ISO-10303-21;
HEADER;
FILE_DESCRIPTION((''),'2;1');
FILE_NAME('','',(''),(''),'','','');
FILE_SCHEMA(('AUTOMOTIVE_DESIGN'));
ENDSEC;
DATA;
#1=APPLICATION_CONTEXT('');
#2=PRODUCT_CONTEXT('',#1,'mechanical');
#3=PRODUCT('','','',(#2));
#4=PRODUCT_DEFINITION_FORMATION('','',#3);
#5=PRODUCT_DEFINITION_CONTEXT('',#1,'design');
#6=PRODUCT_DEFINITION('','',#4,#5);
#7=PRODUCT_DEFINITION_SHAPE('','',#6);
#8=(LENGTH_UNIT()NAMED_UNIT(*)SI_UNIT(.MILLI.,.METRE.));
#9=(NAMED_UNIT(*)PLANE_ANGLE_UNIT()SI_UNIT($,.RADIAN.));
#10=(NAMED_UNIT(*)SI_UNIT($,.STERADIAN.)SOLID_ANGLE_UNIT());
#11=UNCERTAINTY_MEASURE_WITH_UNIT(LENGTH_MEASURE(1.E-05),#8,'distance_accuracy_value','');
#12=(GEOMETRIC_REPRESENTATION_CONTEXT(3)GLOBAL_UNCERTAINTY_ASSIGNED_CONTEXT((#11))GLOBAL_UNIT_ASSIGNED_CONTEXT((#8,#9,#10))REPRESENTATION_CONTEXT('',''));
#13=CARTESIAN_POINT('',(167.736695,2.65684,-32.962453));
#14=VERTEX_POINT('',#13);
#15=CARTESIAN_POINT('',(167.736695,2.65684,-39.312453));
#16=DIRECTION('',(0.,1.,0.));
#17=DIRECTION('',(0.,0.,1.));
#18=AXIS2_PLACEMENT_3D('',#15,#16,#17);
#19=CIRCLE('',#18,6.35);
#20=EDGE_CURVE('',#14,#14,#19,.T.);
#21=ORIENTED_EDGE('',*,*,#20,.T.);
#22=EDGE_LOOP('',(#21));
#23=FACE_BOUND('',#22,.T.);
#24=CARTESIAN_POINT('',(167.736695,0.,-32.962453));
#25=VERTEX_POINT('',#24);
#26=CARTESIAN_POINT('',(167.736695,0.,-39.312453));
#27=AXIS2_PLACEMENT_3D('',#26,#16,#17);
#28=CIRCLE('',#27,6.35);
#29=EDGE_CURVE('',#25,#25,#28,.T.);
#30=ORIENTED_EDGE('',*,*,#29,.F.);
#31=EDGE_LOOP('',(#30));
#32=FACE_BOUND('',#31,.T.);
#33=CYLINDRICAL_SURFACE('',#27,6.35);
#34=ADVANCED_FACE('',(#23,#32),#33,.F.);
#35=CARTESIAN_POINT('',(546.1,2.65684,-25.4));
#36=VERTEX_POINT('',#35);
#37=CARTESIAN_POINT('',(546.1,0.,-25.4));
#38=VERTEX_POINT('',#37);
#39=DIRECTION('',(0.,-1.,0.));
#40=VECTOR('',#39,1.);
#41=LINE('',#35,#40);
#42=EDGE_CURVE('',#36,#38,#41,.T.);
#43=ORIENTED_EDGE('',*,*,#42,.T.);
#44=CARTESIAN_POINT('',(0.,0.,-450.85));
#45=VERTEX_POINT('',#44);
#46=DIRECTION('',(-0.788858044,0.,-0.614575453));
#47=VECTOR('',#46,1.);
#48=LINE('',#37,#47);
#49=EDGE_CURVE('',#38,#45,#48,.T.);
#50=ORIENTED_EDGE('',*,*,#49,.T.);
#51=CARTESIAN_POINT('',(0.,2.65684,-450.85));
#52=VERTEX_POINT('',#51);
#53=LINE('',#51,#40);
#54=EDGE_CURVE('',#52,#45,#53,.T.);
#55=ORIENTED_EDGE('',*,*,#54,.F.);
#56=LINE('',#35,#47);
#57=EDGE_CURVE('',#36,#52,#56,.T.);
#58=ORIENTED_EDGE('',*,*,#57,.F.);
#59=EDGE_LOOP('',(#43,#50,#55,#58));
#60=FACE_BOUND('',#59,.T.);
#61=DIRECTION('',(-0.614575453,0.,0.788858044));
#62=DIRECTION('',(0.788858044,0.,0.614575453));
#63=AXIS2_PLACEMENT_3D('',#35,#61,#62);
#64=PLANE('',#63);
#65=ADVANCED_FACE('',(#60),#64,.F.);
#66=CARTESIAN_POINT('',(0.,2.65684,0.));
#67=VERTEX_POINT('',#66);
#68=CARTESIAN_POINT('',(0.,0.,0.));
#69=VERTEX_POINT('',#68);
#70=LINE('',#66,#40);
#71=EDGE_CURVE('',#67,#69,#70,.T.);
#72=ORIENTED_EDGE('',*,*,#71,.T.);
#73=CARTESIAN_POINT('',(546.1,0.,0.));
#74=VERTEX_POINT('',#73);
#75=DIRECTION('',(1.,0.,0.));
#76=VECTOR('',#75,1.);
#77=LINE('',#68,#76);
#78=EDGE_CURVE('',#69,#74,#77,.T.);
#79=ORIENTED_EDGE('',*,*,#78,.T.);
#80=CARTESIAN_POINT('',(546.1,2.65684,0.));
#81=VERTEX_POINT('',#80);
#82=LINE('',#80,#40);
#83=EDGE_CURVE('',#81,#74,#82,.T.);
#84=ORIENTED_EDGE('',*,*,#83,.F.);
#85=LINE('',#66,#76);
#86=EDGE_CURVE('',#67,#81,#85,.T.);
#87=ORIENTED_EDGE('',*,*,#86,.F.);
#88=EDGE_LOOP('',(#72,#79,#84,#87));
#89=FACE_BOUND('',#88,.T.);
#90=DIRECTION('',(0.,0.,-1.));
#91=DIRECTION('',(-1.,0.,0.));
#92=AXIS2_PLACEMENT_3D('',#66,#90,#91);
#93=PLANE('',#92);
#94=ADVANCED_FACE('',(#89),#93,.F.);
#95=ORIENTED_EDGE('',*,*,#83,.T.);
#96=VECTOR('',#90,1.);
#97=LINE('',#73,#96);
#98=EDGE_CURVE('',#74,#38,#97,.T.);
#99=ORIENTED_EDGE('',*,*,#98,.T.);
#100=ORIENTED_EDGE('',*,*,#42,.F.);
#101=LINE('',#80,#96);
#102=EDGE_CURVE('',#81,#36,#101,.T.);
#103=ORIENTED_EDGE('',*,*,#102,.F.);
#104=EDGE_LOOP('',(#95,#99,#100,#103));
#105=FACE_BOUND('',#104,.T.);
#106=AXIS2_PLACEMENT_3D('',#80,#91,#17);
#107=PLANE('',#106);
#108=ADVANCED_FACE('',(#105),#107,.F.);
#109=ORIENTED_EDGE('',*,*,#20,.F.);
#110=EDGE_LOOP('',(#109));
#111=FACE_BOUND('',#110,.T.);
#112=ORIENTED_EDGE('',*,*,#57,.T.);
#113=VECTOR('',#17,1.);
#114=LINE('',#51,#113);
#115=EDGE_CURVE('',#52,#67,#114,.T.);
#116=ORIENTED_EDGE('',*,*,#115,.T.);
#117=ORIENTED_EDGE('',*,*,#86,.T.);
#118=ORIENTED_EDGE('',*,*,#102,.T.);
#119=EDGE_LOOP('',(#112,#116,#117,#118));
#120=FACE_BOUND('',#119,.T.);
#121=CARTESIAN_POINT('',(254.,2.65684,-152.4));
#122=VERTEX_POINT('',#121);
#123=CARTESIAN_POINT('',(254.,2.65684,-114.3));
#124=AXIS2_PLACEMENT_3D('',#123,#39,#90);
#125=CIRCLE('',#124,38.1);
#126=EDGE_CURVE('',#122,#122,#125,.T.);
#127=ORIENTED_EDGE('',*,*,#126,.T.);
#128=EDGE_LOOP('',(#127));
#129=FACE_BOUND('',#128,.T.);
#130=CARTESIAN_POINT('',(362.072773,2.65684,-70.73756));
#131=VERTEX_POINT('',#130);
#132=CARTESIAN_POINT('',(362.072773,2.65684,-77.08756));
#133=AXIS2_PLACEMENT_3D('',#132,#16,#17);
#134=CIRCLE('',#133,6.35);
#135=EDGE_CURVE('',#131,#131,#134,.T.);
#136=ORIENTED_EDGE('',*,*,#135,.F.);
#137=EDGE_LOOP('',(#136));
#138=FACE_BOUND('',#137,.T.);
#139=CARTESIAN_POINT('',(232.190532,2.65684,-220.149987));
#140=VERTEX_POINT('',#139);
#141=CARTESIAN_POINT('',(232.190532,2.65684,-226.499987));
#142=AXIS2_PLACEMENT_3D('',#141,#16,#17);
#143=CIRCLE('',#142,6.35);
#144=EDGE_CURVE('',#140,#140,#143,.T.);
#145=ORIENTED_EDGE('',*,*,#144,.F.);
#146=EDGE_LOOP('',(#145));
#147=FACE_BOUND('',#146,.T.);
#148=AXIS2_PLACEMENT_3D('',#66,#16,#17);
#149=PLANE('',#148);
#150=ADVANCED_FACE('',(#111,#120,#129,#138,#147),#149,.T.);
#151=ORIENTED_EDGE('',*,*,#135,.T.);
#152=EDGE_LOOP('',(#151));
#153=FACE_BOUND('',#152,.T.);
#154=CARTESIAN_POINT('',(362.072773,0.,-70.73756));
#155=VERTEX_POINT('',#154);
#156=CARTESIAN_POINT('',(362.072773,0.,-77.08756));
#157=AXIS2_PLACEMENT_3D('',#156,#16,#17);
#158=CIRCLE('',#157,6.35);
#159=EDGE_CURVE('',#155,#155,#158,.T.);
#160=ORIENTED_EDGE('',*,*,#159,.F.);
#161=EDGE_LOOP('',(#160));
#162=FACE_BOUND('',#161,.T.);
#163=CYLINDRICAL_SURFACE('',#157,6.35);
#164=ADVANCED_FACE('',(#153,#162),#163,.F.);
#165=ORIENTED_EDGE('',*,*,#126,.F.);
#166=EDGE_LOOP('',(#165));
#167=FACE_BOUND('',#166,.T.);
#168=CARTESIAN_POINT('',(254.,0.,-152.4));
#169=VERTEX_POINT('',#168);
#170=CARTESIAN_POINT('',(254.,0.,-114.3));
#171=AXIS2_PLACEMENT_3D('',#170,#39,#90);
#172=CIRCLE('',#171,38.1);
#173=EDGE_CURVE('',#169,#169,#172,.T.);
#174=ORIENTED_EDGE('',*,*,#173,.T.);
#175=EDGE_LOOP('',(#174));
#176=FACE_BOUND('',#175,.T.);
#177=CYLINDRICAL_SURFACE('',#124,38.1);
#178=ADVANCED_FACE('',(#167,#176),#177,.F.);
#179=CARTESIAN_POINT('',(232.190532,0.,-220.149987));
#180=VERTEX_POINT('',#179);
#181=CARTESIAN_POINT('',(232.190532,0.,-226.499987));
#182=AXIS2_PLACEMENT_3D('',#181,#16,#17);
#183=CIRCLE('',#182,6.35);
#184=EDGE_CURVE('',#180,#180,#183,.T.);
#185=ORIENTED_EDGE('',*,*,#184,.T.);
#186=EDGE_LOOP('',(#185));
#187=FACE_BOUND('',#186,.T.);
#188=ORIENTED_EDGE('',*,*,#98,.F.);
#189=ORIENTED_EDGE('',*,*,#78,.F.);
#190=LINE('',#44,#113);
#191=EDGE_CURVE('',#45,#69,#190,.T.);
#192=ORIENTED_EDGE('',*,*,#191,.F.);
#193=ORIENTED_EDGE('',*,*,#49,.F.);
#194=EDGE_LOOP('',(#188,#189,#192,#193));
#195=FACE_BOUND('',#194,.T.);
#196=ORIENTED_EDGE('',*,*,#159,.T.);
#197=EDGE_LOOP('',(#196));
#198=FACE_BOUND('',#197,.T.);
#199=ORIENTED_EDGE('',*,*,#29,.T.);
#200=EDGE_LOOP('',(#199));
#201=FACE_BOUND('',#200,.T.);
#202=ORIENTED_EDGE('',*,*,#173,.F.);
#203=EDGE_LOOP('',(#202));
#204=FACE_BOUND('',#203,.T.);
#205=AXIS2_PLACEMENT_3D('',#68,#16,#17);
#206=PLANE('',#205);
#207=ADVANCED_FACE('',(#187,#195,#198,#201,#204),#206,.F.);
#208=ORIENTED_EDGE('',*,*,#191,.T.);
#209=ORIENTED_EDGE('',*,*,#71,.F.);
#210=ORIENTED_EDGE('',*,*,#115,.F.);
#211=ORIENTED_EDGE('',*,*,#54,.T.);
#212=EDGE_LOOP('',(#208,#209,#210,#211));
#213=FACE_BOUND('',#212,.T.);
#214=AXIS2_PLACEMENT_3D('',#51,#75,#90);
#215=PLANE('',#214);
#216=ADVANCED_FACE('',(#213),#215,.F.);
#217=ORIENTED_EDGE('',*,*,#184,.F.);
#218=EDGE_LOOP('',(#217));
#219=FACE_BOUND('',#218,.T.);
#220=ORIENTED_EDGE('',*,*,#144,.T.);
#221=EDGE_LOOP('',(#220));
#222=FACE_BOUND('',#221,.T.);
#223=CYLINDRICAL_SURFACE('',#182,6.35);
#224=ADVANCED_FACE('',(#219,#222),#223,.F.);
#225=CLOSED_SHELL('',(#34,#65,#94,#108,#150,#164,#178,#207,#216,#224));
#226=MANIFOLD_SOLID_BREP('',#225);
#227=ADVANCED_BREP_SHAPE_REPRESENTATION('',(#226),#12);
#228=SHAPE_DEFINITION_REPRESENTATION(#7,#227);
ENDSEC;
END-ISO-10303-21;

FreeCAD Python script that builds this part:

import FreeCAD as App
import Part
import Sketcher

V = App.Vector
Q = App.Units.Quantity


def add_polygon(sketch, points):
    """Adds a closed chain of lines whose ends are joined by coincident constraints."""
    first, n = sketch.GeometryCount, len(points)
    for a, b in zip(points, points[1:] + points[:1]):
        sketch.addGeometry(Part.LineSegment(App.Vector(*a, 0), App.Vector(*b, 0)), False)
    for i in range(n):
        sketch.addConstraint(Sketcher.Constraint("Coincident", first + i, 2, first + (i + 1) % n, 1))

doc = App.newDocument("Part")
params = doc.addObject("Spreadsheet::Sheet", "Params")
for row, (alias, value) in enumerate([
    ("sketch1_height", "1 in"),
    ("sketch1_width", "21.5 in"),
    ("sketch1_height2", "17.75 in"),
    ("pad1_length", "0.1046 in"),
    ("sketch2_diameter", "3 in"),
    ("sketch3_diameter", "0.5 in"),
], start=1):
    params.set(f"A{row}", alias)
    params.set(f"B{row}", "=" + value)
    params.setAlias(f"B{row}", alias)

body = doc.addObject("PartDesign::Body", "Body")

sketch1 = body.newObject("Sketcher::SketchObject", "Sketch")
sketch1.AttachmentSupport = (doc.getObject("XZ_Plane"), [""])
sketch1.MapMode = "FlatFace"
add_polygon(sketch1, [(0, -451), (0, 0), (546, 0), (546, -25)])
sketch1.addConstraint(Sketcher.Constraint("Vertical", 0))
sketch1.addConstraint(Sketcher.Constraint("Horizontal", 1))
sketch1.addConstraint(Sketcher.Constraint("Vertical", 2))
sketch1.addConstraint(Sketcher.Constraint("Coincident", 0, 2, -1, 1))
sketch1.addConstraint(Sketcher.Constraint("DistanceY", 2, 2, 2, 1, Q("1 in")))
sketch1.addConstraint(Sketcher.Constraint("DistanceX", 1, 1, 1, 2, Q("21.5 in")))
sketch1.addConstraint(Sketcher.Constraint("DistanceY", 0, 1, 0, 2, Q("17.75 in")))
sketch1.setExpression("Constraints[8]", "Params.sketch1_height")
sketch1.setExpression("Constraints[9]", "Params.sketch1_width")
sketch1.setExpression("Constraints[10]", "Params.sketch1_height2")
pad1 = body.newObject("PartDesign::Pad", "Pad")
pad1.Profile = sketch1
pad1.setExpression("Length", "Params.pad1_length")
pad1.Reversed = True

sketch2 = body.newObject("Sketcher::SketchObject", "Sketch001")
sketch2.AttachmentSupport = (doc.getObject("XZ_Plane"), [""])
sketch2.MapMode = "FlatFace"
sketch2.addGeometry(Part.Circle(V(254, -114, 0), V(0, 0, 1), 38), False)
sketch2.addConstraint(Sketcher.Constraint("Diameter", 0, Q("3 in")))
sketch2.addConstraint(Sketcher.Constraint("DistanceX", -1, 1, 0, 3, Q("10 in")))
sketch2.addConstraint(Sketcher.Constraint("DistanceY", 0, 3, -1, 1, Q("4.5 in")))
sketch2.setExpression("Constraints[0]", "Params.sketch2_diameter")
pocket1 = body.newObject("PartDesign::Pocket", "Pocket")
pocket1.Profile = sketch2
pocket1.Type = "ThroughAll"

sketch3 = body.newObject("Sketcher::SketchObject", "Sketch002")
sketch3.AttachmentSupport = (doc.getObject("XZ_Plane"), [""])
sketch3.MapMode = "FlatFace"
sketch3.AttachmentOffset = App.Placement(V(0, 0, -0.1046 * 25.4), App.Rotation())
sketch3.addGeometry(Part.Circle(V(362, -77, 0), V(0, 0, 1), 6), False)
sketch3.addGeometry(Part.Circle(V(168, -39, 0), V(0, 0, 1), 6), False)
sketch3.addGeometry(Part.Circle(V(232, -226, 0), V(0, 0, 1), 6), False)
sketch3.addConstraint(Sketcher.Constraint("Equal", 0, 1))
sketch3.addConstraint(Sketcher.Constraint("Equal", 1, 2))
sketch3.addConstraint(Sketcher.Constraint("Diameter", 0, Q("0.5 in")))
sketch3.addConstraint(Sketcher.Constraint("DistanceY", 0, 3, -1, 1, Q("77.08756 mm")))
sketch3.addConstraint(Sketcher.Constraint("DistanceX", -1, 1, 2, 3, Q("232.190532 mm")))
sketch3.addConstraint(Sketcher.Constraint("DistanceX", 1, 3, 0, 3, Q("194.336078 mm")))
sketch3.addConstraint(Sketcher.Constraint("DistanceX", 2, 3, 0, 3, Q("129.882241 mm")))
sketch3.addConstraint(Sketcher.Constraint("DistanceY", 1, 3, -1, 1, Q("39.312453 mm")))
sketch3.addConstraint(Sketcher.Constraint("DistanceY", 2, 3, -1, 1, Q("226.499987 mm")))
sketch3.setExpression("Constraints[2]", "Params.sketch3_diameter")
pocket2 = body.newObject("PartDesign::Pocket", "Pocket001")
pocket2.Profile = sketch3
pocket2.Type = "ThroughAll"
pocket2.Reversed = True

doc.recompute()
